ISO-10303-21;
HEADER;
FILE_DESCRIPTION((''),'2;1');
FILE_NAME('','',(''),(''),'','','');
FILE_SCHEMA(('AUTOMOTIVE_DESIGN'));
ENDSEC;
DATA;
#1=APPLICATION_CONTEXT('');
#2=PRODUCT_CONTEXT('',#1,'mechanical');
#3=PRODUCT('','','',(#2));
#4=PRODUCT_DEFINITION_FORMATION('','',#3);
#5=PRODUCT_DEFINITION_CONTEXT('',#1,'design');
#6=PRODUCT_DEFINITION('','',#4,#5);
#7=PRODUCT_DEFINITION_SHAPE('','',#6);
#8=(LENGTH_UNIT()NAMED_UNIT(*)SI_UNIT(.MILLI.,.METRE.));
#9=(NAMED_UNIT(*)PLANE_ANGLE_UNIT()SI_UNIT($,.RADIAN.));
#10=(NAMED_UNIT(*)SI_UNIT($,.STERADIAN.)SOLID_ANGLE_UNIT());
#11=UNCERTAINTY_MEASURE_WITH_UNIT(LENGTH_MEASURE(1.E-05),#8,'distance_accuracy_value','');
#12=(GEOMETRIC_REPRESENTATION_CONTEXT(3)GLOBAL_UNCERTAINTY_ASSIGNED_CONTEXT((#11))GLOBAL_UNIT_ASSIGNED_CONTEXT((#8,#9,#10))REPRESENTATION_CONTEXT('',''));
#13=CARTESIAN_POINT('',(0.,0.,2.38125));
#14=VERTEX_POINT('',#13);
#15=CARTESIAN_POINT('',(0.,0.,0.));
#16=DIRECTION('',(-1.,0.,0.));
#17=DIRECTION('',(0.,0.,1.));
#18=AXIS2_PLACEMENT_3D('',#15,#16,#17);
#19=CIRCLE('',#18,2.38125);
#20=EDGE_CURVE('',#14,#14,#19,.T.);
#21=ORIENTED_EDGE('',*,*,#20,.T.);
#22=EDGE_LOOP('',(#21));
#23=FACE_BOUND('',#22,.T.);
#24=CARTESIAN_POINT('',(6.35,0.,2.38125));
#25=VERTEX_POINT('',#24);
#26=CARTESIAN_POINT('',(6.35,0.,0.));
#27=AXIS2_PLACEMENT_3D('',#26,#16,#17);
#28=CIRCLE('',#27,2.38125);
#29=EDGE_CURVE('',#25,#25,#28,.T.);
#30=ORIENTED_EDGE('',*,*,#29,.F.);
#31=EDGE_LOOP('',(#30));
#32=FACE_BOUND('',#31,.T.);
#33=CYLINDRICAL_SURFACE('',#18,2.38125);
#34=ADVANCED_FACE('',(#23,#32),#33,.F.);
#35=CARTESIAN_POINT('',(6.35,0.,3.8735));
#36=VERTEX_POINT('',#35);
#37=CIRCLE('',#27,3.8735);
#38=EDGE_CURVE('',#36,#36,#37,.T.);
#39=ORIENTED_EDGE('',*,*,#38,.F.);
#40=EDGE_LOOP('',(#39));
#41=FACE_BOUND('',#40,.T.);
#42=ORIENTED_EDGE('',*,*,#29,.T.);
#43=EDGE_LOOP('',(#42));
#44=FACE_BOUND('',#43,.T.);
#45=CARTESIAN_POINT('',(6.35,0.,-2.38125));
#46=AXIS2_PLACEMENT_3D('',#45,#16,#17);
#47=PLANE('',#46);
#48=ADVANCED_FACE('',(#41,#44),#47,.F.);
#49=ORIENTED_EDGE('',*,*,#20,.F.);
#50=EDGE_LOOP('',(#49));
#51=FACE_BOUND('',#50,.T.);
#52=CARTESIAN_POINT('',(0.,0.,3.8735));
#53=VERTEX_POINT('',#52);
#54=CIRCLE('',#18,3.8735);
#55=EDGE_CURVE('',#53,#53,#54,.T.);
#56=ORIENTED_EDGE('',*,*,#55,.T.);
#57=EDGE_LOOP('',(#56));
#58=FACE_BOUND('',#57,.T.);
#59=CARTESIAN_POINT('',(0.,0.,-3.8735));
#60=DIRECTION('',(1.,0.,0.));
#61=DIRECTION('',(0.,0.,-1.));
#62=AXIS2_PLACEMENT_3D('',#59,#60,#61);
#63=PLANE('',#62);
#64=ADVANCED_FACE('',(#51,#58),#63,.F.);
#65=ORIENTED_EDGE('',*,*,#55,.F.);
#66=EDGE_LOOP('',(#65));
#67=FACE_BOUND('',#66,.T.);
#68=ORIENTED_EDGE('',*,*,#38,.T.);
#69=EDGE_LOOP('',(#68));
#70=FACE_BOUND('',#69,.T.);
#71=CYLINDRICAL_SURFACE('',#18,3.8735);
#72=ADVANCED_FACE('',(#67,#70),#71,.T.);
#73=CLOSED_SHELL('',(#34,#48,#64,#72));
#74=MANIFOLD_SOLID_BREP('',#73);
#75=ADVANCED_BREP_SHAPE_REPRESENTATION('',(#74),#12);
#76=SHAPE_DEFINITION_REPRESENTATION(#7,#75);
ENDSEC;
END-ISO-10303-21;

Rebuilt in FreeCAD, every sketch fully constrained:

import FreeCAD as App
import Part
import Sketcher
Q = App.Units.Quantity


def add_polygon(sketch, points):
    """Adds a closed chain of lines whose ends are joined by coincident constraints."""
    first, n = sketch.GeometryCount, len(points)
    for a, b in zip(points, points[1:] + points[:1]):
        sketch.addGeometry(Part.LineSegment(App.Vector(*a, 0), App.Vector(*b, 0)), False)
    for i in range(n):
        sketch.addConstraint(Sketcher.Constraint("Coincident", first + i, 2, first + (i + 1) % n, 1))

doc = App.newDocument("Part")
body = doc.addObject("PartDesign::Body", "Body")

sketch1 = body.newObject("Sketcher::SketchObject", "Sketch")
sketch1.AttachmentSupport = (doc.getObject("XZ_Plane"), [""])
sketch1.MapMode = "FlatFace"
add_polygon(sketch1, [(0, -3.9), (0, -2.4), (6.3, -2.4), (6.3, -3.9)])
sketch1.addConstraint(Sketcher.Constraint("Vertical", 0))
sketch1.addConstraint(Sketcher.Constraint("Horizontal", 1))
sketch1.addConstraint(Sketcher.Constraint("Vertical", 2))
sketch1.addConstraint(Sketcher.Constraint("Horizontal", 3))
sketch1.addConstraint(Sketcher.Constraint("PointOnObject", 0, 2, -2))
sketch1.addConstraint(Sketcher.Constraint("DistanceX", 1, 1, 1, 2, Q("0.25 in")))
sketch1.addConstraint(Sketcher.Constraint("DistanceY", 0, 2, -1, 1, Q("0.09375 in")))
sketch1.addConstraint(Sketcher.Constraint("DistanceY", 2, 2, -1, 1, Q("0.1525 in")))
revolution = body.newObject("PartDesign::Revolution", "Revolution")
revolution.Profile = sketch1
revolution.ReferenceAxis = (sketch1, ["H_Axis"])
revolution.Angle = 360

doc.recompute()
